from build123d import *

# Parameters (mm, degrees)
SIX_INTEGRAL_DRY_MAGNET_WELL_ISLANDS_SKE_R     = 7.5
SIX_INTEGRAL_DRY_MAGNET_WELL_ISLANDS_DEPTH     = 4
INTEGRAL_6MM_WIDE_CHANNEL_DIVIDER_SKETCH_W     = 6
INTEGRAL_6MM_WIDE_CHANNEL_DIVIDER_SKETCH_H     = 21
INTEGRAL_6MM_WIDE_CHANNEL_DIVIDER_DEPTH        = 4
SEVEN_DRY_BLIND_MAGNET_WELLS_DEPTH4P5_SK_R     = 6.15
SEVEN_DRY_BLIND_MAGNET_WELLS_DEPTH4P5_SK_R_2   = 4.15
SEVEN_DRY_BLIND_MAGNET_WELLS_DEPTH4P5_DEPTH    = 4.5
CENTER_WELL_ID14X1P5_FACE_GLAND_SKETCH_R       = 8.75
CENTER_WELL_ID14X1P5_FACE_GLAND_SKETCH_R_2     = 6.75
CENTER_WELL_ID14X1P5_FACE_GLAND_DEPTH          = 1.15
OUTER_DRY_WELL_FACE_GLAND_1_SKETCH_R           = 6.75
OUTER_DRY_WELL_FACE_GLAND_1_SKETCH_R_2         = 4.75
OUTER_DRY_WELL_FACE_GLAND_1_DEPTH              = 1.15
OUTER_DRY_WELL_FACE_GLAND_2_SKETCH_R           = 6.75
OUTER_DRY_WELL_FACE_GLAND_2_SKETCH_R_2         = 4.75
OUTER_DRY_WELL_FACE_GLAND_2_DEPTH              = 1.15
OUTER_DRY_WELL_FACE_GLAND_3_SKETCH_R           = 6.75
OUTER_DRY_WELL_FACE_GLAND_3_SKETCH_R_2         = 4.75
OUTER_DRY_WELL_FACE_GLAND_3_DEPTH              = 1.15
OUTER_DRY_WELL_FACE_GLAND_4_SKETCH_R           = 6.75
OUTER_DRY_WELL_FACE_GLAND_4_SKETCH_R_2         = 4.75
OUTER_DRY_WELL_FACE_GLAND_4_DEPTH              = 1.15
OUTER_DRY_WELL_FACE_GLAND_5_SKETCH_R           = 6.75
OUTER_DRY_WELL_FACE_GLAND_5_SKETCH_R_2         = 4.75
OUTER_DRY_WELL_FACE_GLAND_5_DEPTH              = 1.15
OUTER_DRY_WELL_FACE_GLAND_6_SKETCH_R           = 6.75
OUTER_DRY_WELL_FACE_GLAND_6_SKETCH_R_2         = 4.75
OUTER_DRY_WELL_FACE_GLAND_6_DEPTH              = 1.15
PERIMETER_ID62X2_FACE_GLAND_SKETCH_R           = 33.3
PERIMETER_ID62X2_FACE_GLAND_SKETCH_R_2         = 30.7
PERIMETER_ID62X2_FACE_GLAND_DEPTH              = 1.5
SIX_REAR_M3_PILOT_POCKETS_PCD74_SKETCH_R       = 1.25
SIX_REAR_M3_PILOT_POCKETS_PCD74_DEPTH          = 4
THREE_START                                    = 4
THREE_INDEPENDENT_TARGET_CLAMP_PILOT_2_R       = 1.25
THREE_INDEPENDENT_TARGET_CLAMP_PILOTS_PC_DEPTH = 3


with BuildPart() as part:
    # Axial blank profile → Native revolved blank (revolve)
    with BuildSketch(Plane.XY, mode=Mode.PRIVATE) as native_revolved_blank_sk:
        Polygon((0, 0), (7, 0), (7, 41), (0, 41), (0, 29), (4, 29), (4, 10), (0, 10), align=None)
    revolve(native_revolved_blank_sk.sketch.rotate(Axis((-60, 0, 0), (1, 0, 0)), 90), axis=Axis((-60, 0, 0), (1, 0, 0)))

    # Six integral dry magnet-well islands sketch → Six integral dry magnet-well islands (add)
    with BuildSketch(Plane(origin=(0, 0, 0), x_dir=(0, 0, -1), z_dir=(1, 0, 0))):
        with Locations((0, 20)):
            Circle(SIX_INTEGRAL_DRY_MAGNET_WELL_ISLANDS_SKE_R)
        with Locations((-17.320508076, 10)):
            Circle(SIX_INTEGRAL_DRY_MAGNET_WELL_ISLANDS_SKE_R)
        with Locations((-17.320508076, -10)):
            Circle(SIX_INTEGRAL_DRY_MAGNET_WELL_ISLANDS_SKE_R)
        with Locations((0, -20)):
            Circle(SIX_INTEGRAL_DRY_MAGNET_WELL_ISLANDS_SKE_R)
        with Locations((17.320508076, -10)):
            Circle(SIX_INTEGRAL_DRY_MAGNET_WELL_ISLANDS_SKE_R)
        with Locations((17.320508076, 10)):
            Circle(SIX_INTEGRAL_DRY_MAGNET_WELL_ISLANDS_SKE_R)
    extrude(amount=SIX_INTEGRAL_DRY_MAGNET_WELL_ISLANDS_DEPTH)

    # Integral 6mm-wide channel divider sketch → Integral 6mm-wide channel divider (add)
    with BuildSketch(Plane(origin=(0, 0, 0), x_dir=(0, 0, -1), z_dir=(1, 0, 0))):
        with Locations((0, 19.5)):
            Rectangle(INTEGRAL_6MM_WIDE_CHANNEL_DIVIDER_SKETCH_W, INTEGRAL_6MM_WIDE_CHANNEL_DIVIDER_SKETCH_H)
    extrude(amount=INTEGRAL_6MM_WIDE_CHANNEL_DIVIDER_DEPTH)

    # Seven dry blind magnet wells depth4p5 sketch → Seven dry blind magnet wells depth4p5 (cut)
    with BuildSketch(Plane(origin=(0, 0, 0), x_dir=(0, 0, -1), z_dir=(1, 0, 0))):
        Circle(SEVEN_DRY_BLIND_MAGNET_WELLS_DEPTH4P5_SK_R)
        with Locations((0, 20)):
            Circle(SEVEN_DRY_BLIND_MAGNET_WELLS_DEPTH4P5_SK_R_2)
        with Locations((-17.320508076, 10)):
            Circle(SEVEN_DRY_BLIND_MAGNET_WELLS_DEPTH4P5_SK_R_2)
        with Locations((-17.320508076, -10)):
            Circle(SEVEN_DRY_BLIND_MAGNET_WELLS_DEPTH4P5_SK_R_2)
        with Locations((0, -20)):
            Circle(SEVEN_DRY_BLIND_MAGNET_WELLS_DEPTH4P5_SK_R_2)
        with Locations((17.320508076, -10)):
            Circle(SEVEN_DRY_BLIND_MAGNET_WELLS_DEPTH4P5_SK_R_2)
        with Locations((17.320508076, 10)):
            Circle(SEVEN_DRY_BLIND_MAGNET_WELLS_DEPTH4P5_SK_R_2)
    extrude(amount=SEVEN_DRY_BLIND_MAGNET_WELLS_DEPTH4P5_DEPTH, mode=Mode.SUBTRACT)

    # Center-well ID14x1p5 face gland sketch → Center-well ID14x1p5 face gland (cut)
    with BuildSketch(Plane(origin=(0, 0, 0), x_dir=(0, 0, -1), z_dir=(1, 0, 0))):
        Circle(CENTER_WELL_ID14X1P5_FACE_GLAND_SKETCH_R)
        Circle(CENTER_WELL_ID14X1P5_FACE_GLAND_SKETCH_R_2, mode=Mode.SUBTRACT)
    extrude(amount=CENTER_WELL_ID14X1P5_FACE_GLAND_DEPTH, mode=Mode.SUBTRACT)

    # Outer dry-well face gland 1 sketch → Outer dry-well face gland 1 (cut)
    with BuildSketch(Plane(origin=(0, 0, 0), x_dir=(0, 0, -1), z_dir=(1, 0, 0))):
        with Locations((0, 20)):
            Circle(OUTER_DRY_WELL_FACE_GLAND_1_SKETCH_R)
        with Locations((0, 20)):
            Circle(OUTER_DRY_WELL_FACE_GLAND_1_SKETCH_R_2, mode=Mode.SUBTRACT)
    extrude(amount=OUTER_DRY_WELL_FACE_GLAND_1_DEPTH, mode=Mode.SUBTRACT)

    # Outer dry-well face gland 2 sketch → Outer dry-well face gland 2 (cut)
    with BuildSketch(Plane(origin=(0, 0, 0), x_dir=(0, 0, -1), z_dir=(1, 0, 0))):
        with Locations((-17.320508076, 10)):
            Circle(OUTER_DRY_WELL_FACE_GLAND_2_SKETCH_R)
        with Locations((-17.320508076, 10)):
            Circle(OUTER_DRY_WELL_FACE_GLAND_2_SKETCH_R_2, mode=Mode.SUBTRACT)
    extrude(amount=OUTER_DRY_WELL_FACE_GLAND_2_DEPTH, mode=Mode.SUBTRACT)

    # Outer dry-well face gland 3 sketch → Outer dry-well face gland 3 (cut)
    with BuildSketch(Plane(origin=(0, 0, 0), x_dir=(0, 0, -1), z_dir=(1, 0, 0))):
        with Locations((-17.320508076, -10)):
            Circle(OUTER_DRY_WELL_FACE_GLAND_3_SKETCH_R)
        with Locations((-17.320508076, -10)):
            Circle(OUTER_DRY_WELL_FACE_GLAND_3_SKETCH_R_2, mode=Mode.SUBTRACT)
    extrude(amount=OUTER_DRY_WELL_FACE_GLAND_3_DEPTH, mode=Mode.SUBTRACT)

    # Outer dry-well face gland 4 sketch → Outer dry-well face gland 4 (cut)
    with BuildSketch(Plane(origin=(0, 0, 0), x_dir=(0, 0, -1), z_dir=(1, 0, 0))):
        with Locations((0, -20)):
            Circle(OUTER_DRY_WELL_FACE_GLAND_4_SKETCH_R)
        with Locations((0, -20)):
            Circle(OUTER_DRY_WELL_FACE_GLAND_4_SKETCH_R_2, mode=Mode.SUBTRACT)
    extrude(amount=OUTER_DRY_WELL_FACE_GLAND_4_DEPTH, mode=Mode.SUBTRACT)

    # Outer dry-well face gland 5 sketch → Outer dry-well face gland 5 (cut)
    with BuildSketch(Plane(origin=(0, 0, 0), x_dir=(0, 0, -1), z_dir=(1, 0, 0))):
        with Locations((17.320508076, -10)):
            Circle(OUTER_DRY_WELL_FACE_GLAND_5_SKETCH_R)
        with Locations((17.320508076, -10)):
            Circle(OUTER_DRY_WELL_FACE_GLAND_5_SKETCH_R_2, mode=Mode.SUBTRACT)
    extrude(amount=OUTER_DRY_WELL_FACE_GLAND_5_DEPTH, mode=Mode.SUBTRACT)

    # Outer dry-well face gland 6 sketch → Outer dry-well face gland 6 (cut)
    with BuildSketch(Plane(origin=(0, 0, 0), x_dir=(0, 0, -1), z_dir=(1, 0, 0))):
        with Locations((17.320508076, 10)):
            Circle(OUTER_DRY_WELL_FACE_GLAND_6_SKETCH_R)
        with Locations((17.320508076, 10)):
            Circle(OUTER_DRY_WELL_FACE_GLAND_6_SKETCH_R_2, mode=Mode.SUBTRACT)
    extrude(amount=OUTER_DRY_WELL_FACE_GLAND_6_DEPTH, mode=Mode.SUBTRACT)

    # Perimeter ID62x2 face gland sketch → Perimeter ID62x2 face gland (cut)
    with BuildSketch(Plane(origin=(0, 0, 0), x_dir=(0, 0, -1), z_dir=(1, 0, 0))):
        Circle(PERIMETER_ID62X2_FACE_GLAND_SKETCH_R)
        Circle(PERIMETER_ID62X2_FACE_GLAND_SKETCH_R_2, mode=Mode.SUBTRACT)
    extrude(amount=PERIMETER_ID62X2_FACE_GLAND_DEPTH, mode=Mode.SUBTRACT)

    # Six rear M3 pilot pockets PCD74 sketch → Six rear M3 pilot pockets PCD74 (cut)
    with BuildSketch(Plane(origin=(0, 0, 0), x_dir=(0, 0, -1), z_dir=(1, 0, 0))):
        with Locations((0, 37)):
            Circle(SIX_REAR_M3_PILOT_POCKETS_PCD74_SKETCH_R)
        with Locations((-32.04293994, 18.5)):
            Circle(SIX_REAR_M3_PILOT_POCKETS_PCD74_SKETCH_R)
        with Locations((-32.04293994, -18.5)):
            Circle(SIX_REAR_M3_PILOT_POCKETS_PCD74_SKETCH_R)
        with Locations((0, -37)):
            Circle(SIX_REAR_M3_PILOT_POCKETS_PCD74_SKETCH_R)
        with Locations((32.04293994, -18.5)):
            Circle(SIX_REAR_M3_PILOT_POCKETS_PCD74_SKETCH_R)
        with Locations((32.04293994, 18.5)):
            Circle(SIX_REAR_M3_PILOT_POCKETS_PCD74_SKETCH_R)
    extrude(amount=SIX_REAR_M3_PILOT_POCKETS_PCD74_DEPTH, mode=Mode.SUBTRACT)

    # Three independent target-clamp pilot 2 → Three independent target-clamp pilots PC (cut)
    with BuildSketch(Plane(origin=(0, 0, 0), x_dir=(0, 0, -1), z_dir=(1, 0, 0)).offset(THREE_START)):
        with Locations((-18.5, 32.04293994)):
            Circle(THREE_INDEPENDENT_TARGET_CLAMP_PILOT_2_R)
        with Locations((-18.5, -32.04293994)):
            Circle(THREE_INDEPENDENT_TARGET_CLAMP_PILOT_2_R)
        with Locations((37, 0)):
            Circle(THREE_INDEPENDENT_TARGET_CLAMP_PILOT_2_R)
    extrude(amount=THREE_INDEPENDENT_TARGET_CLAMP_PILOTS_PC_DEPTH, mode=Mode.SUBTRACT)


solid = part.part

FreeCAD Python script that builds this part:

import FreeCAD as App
import Part
import Sketcher
from FreeCAD import Vector
Q = App.Units.Quantity


def add_polygon(sketch, points):
    """Adds a closed chain of lines whose ends are joined by coincident constraints."""
    first, n = sketch.GeometryCount, len(points)
    for a, b in zip(points, points[1:] + points[:1]):
        sketch.addGeometry(Part.LineSegment(App.Vector(*a, 0), App.Vector(*b, 0)), False)
    for i in range(n):
        sketch.addConstraint(Sketcher.Constraint("Coincident", first + i, 2, first + (i + 1) % n, 1))

doc = App.newDocument("Part")
body = doc.addObject("PartDesign::Body", "Body")

# Sketch on XY plane
sketch1 = doc.addObject("Sketcher::SketchObject", "Sketch")
body.addObject(sketch1)
sketch1.AttachmentSupport = (doc.XY_Plane, [""])
sketch1.MapMode = "FlatFace"
add_polygon(sketch1, [(0, 0), (7, 0), (7, 41), (0, 41), (0, 29), (4, 29), (4, 10), (0, 10)])  # lines 0-7
sketch1.addConstraint([
    Sketcher.Constraint("Horizontal", 0),
    Sketcher.Constraint("Vertical", 1),
    Sketcher.Constraint("Horizontal", 2),
    Sketcher.Constraint("Vertical", 3),
    Sketcher.Constraint("Horizontal", 4),
    Sketcher.Constraint("Vertical", 5),
    Sketcher.Constraint("Horizontal", 6),
    Sketcher.Constraint("Vertical", 7),
    Sketcher.Constraint("Coincident", 7, 2, -1, 1),
    Sketcher.Constraint("PointOnObject", 2, 2, -2),
    Sketcher.Constraint("DistanceX", 0, 1, 0, 2, Q("7 mm")),
    Sketcher.Constraint("DistanceX", 4, 1, 4, 2, Q("4 mm")),
    Sketcher.Constraint("DistanceY", 1, 1, 1, 2, Q("41 mm")),
    Sketcher.Constraint("DistanceY", 3, 2, 3, 1, Q("12 mm")),
    Sketcher.Constraint("DistanceY", 5, 2, 5, 1, Q("19 mm")),
])
revolution = doc.addObject("PartDesign::Revolution", "Revolution")
body.addObject(revolution)
revolution.Profile = sketch1
revolution.ReferenceAxis = (sketch1, ["H_Axis"])
revolution.Angle = 360

# Sketch on YZ plane
sketch2 = doc.addObject("Sketcher::SketchObject", "Sketch001")
body.addObject(sketch2)
sketch2.AttachmentSupport = (doc.YZ_Plane, [""])
sketch2.MapMode = "FlatFace"
sketch2.addGeometry([
    Part.Circle(Vector(20, 0, 0), Vector(0, 0, 1), 8),  # 0
    Part.Circle(Vector(10, 17, 0), Vector(0, 0, 1), 8),  # 1
    Part.Circle(Vector(-10, 17, 0), Vector(0, 0, 1), 8),  # 2
    Part.Circle(Vector(-20, 0, 0), Vector(0, 0, 1), 8),  # 3
    Part.Circle(Vector(-10, -17, 0), Vector(0, 0, 1), 8),  # 4
    Part.Circle(Vector(10, -17, 0), Vector(0, 0, 1), 8),  # 5
], False)
sketch2.addConstraint([
    Sketcher.Constraint("Equal", 0, 1),
    Sketcher.Constraint("Equal", 1, 2),
    Sketcher.Constraint("Equal", 2, 3),
    Sketcher.Constraint("Equal", 3, 4),
    Sketcher.Constraint("Equal", 4, 5),
    Sketcher.Constraint("Symmetric", 0, 3, 3, 3, -1, 1),
    Sketcher.Constraint("Symmetric", 1, 3, 4, 3, -1, 1),
    Sketcher.Constraint("Symmetric", 2, 3, 5, 3, -1, 1),
    Sketcher.Constraint("Symmetric", 1, 3, 2, 3, -2),
    Sketcher.Constraint("PointOnObject", 0, 3, -1),
    Sketcher.Constraint("Diameter", 0, Q("15 mm")),
    Sketcher.Constraint("DistanceX", -1, 1, 0, 3, Q("20 mm")),
    Sketcher.Constraint("DistanceX", -1, 1, 1, 3, Q("10 mm")),
    Sketcher.Constraint("DistanceY", -1, 1, 1, 3, Q("17.320508 mm")),
])
pad1 = doc.addObject("PartDesign::Pad", "Pad")
body.addObject(pad1)
pad1.Profile = sketch2
pad1.Length = 4

# Sketch on YZ plane
sketch3 = doc.addObject("Sketcher::SketchObject", "Sketch002")
body.addObject(sketch3)
sketch3.AttachmentSupport = (doc.YZ_Plane, [""])
sketch3.MapMode = "FlatFace"
add_polygon(sketch3, [(30, 3), (9, 3), (9, -3), (30, -3)])  # lines 0-3
sketch3.addConstraint([
    Sketcher.Constraint("Horizontal", 0),
    Sketcher.Constraint("Vertical", 1),
    Sketcher.Constraint("Horizontal", 2),
    Sketcher.Constraint("Vertical", 3),
    Sketcher.Constraint("DistanceX", 0, 2, 0, 1, Q("21 mm")),
    Sketcher.Constraint("DistanceY", 1, 2, 1, 1, Q("6 mm")),
    Sketcher.Constraint("DistanceX", -1, 1, 0, 2, Q("9 mm")),
    Sketcher.Constraint("DistanceY", -1, 1, 0, 2, Q("3 mm")),
])
pad2 = doc.addObject("PartDesign::Pad", "Pad001")
body.addObject(pad2)
pad2.Profile = sketch3
pad2.Length = 4

# Sketch on YZ plane
sketch4 = doc.addObject("Sketcher::SketchObject", "Sketch003")
body.addObject(sketch4)
sketch4.AttachmentSupport = (doc.YZ_Plane, [""])
sketch4.MapMode = "FlatFace"
sketch4.addGeometry([
    Part.Circle(Vector(0, 0, 0), Vector(0, 0, 1), 6.2),  # 0
    Part.Circle(Vector(20, 0, 0), Vector(0, 0, 1), 4.2),  # 1
    Part.Circle(Vector(10, 17.3, 0), Vector(0, 0, 1), 4.2),  # 2
    Part.Circle(Vector(-10, 17.3, 0), Vector(0, 0, 1), 4.2),  # 3
    Part.Circle(Vector(-20, 0, 0), Vector(0, 0, 1), 4.2),  # 4
    Part.Circle(Vector(-10, -17.3, 0), Vector(0, 0, 1), 4.2),  # 5
    Part.Circle(Vector(10, -17.3, 0), Vector(0, 0, 1), 4.2),  # 6
], False)
sketch4.addConstraint([
    Sketcher.Constraint("Coincident", 0, 3, -1, 1),
    Sketcher.Constraint("Equal", 1, 2),
    Sketcher.Constraint("Equal", 2, 3),
    Sketcher.Constraint("Equal", 3, 4),
    Sketcher.Constraint("Equal", 4, 5),
    Sketcher.Constraint("Equal", 5, 6),
    Sketcher.Constraint("Symmetric", 1, 3, 4, 3, -1, 1),
    Sketcher.Constraint("Symmetric", 2, 3, 5, 3, -1, 1),
    Sketcher.Constraint("Symmetric", 3, 3, 6, 3, -1, 1),
    Sketcher.Constraint("Symmetric", 2, 3, 3, 3, -2),
    Sketcher.Constraint("PointOnObject", 1, 3, -1),
    Sketcher.Constraint("Diameter", 0, Q("12.3 mm")),
    Sketcher.Constraint("Diameter", 1, Q("8.3 mm")),
    Sketcher.Constraint("DistanceX", -1, 1, 1, 3, Q("20 mm")),
    Sketcher.Constraint("DistanceX", -1, 1, 2, 3, Q("10 mm")),
    Sketcher.Constraint("DistanceY", -1, 1, 2, 3, Q("17.320508 mm")),
])
pocket1 = doc.addObject("PartDesign::Pocket", "Pocket")
body.addObject(pocket1)
pocket1.Profile = sketch4
pocket1.Length = 4.5
pocket1.Reversed = True

# Sketch on YZ plane
sketch5 = doc.addObject("Sketcher::SketchObject", "Sketch004")
body.addObject(sketch5)
sketch5.AttachmentSupport = (doc.YZ_Plane, [""])
sketch5.MapMode = "FlatFace"
sketch5.addGeometry([
    Part.Circle(Vector(0, 0, 0), Vector(0, 0, 1), 9),
    Part.Circle(Vector(0, 0, 0), Vector(0, 0, 1), 7),
], False)
sketch5.addConstraint([
    Sketcher.Constraint("Coincident", 0, 3, -1, 1),
    Sketcher.Constraint("Coincident", 1, 3, -1, 1),
    Sketcher.Constraint("Diameter", 0, Q("17.5 mm")),
    Sketcher.Constraint("Diameter", 1, Q("13.5 mm")),
])
pocket2 = doc.addObject("PartDesign::Pocket", "Pocket001")
body.addObject(pocket2)
pocket2.Profile = sketch5
pocket2.Length = 1.15
pocket2.Reversed = True

# Sketch on YZ plane
sketch6 = doc.addObject("Sketcher::SketchObject", "Sketch005")
body.addObject(sketch6)
sketch6.AttachmentSupport = (doc.YZ_Plane, [""])
sketch6.MapMode = "FlatFace"
sketch6.addGeometry([
    Part.Circle(Vector(20, 0, 0), Vector(0, 0, 1), 6.8),
    Part.Circle(Vector(20, 0, 0), Vector(0, 0, 1), 4.8),
], False)
sketch6.addConstraint([
    Sketcher.Constraint("Coincident", 1, 3, 0, 3),
    Sketcher.Constraint("PointOnObject", 0, 3, -1),
    Sketcher.Constraint("Diameter", 0, Q("13.5 mm")),
    Sketcher.Constraint("Diameter", 1, Q("9.5 mm")),
    Sketcher.Constraint("DistanceX", -1, 1, 0, 3, Q("20 mm")),
])
pocket3 = doc.addObject("PartDesign::Pocket", "Pocket002")
body.addObject(pocket3)
pocket3.Profile = sketch6
pocket3.Length = 1.15
pocket3.Reversed = True

# Sketch on YZ plane
sketch7 = doc.addObject("Sketcher::SketchObject", "Sketch006")
body.addObject(sketch7)
sketch7.AttachmentSupport = (doc.YZ_Plane, [""])
sketch7.MapMode = "FlatFace"
sketch7.addGeometry([
    Part.Circle(Vector(10, 17.3, 0), Vector(0, 0, 1), 6.8),
    Part.Circle(Vector(10, 17.3, 0), Vector(0, 0, 1), 4.8),
], False)
sketch7.addConstraint([
    Sketcher.Constraint("Coincident", 1, 3, 0, 3),
    Sketcher.Constraint("Diameter", 0, Q("13.5 mm")),
    Sketcher.Constraint("Diameter", 1, Q("9.5 mm")),
    Sketcher.Constraint("DistanceX", -1, 1, 0, 3, Q("10 mm")),
    Sketcher.Constraint("DistanceY", -1, 1, 0, 3, Q("17.320508 mm")),
])
pocket4 = doc.addObject("PartDesign::Pocket", "Pocket003")
body.addObject(pocket4)
pocket4.Profile = sketch7
pocket4.Length = 1.15
pocket4.Reversed = True

# Sketch on YZ plane
sketch8 = doc.addObject("Sketcher::SketchObject", "Sketch007")
body.addObject(sketch8)
sketch8.AttachmentSupport = (doc.YZ_Plane, [""])
sketch8.MapMode = "FlatFace"
sketch8.addGeometry([
    Part.Circle(Vector(-10, 17.3, 0), Vector(0, 0, 1), 6.8),
    Part.Circle(Vector(-10, 17.3, 0), Vector(0, 0, 1), 4.8),
], False)
sketch8.addConstraint([
    Sketcher.Constraint("Coincident", 1, 3, 0, 3),
    Sketcher.Constraint("Diameter", 0, Q("13.5 mm")),
    Sketcher.Constraint("Diameter", 1, Q("9.5 mm")),
    Sketcher.Constraint("DistanceX", 0, 3, -1, 1, Q("10 mm")),
    Sketcher.Constraint("DistanceY", -1, 1, 0, 3, Q("17.320508 mm")),
])
pocket5 = doc.addObject("PartDesign::Pocket", "Pocket004")
body.addObject(pocket5)
pocket5.Profile = sketch8
pocket5.Length = 1.15
pocket5.Reversed = True

# Sketch on YZ plane
sketch9 = doc.addObject("Sketcher::SketchObject", "Sketch008")
body.addObject(sketch9)
sketch9.AttachmentSupport = (doc.YZ_Plane, [""])
sketch9.MapMode = "FlatFace"
sketch9.addGeometry([
    Part.Circle(Vector(-20, 0, 0), Vector(0, 0, 1), 6.8),
    Part.Circle(Vector(-20, 0, 0), Vector(0, 0, 1), 4.8),
], False)
sketch9.addConstraint([
    Sketcher.Constraint("Coincident", 1, 3, 0, 3),
    Sketcher.Constraint("PointOnObject", 0, 3, -1),
    Sketcher.Constraint("Diameter", 0, Q("13.5 mm")),
    Sketcher.Constraint("Diameter", 1, Q("9.5 mm")),
    Sketcher.Constraint("DistanceX", 0, 3, -1, 1, Q("20 mm")),
])
pocket6 = doc.addObject("PartDesign::Pocket", "Pocket005")
body.addObject(pocket6)
pocket6.Profile = sketch9
pocket6.Length = 1.15
pocket6.Reversed = True

# Sketch on YZ plane
sketch10 = doc.addObject("Sketcher::SketchObject", "Sketch009")
body.addObject(sketch10)
sketch10.AttachmentSupport = (doc.YZ_Plane, [""])
sketch10.MapMode = "FlatFace"
sketch10.addGeometry([
    Part.Circle(Vector(-10, -17.3, 0), Vector(0, 0, 1), 6.8),
    Part.Circle(Vector(-10, -17.3, 0), Vector(0, 0, 1), 4.8),
], False)
sketch10.addConstraint([
    Sketcher.Constraint("Coincident", 1, 3, 0, 3),
    Sketcher.Constraint("Diameter", 0, Q("13.5 mm")),
    Sketcher.Constraint("Diameter", 1, Q("9.5 mm")),
    Sketcher.Constraint("DistanceX", 0, 3, -1, 1, Q("10 mm")),
    Sketcher.Constraint("DistanceY", 0, 3, -1, 1, Q("17.320508 mm")),
])
pocket7 = doc.addObject("PartDesign::Pocket", "Pocket006")
body.addObject(pocket7)
pocket7.Profile = sketch10
pocket7.Length = 1.15
pocket7.Reversed = True

# Sketch on YZ plane
sketch11 = doc.addObject("Sketcher::SketchObject", "Sketch010")
body.addObject(sketch11)
sketch11.AttachmentSupport = (doc.YZ_Plane, [""])
sketch11.MapMode = "FlatFace"
sketch11.addGeometry([
    Part.Circle(Vector(10, -17.3, 0), Vector(0, 0, 1), 6.8),
    Part.Circle(Vector(10, -17.3, 0), Vector(0, 0, 1), 4.8),
], False)
sketch11.addConstraint([
    Sketcher.Constraint("Coincident", 1, 3, 0, 3),
    Sketcher.Constraint("Diameter", 0, Q("13.5 mm")),
    Sketcher.Constraint("Diameter", 1, Q("9.5 mm")),
    Sketcher.Constraint("DistanceX", -1, 1, 0, 3, Q("10 mm")),
    Sketcher.Constraint("DistanceY", 0, 3, -1, 1, Q("17.320508 mm")),
])
pocket8 = doc.addObject("PartDesign::Pocket", "Pocket007")
body.addObject(pocket8)
pocket8.Profile = sketch11
pocket8.Length = 1.15
pocket8.Reversed = True

# Sketch on YZ plane
sketch12 = doc.addObject("Sketcher::SketchObject", "Sketch011")
body.addObject(sketch12)
sketch12.AttachmentSupport = (doc.YZ_Plane, [""])
sketch12.MapMode = "FlatFace"
sketch12.addGeometry([
    Part.Circle(Vector(0, 0, 0), Vector(0, 0, 1), 33),
    Part.Circle(Vector(0, 0, 0), Vector(0, 0, 1), 31),
], False)
sketch12.addConstraint([
    Sketcher.Constraint("Coincident", 0, 3, -1, 1),
    Sketcher.Constraint("Coincident", 1, 3, -1, 1),
    Sketcher.Constraint("Diameter", 0, Q("66.6 mm")),
    Sketcher.Constraint("Diameter", 1, Q("61.4 mm")),
])
pocket9 = doc.addObject("PartDesign::Pocket", "Pocket008")
body.addObject(pocket9)
pocket9.Profile = sketch12
pocket9.Length = 1.5
pocket9.Reversed = True

# Sketch on YZ plane
sketch13 = doc.addObject("Sketcher::SketchObject", "Sketch012")
body.addObject(sketch13)
sketch13.AttachmentSupport = (doc.YZ_Plane, [""])
sketch13.MapMode = "FlatFace"
sketch13.addGeometry([
    Part.Circle(Vector(37, 0, 0), Vector(0, 0, 1), 1.2),  # 0
    Part.Circle(Vector(18.5, 32, 0), Vector(0, 0, 1), 1.2),  # 1
    Part.Circle(Vector(-18.5, 32, 0), Vector(0, 0, 1), 1.2),  # 2
    Part.Circle(Vector(-37, 0, 0), Vector(0, 0, 1), 1.2),  # 3
    Part.Circle(Vector(-18.5, -32, 0), Vector(0, 0, 1), 1.2),  # 4
    Part.Circle(Vector(18.5, -32, 0), Vector(0, 0, 1), 1.2),  # 5
], False)
sketch13.addConstraint([
    Sketcher.Constraint("Equal", 0, 1),
    Sketcher.Constraint("Equal", 1, 2),
    Sketcher.Constraint("Equal", 2, 3),
    Sketcher.Constraint("Equal", 3, 4),
    Sketcher.Constraint("Equal", 4, 5),
    Sketcher.Constraint("Symmetric", 0, 3, 3, 3, -1, 1),
    Sketcher.Constraint("Symmetric", 1, 3, 4, 3, -1, 1),
    Sketcher.Constraint("Symmetric", 2, 3, 5, 3, -1, 1),
    Sketcher.Constraint("Symmetric", 1, 3, 2, 3, -2),
    Sketcher.Constraint("PointOnObject", 0, 3, -1),
    Sketcher.Constraint("Diameter", 0, Q("2.5 mm")),
    Sketcher.Constraint("DistanceX", -1, 1, 0, 3, Q("37 mm")),
    Sketcher.Constraint("DistanceX", 2, 3, 1, 3, Q("37 mm")),
    Sketcher.Constraint("DistanceY", -1, 1, 1, 3, Q("32.04294 mm")),
])
pocket10 = doc.addObject("PartDesign::Pocket", "Pocket009")
body.addObject(pocket10)
pocket10.Profile = sketch13
pocket10.Length = 4
pocket10.Reversed = True

# Sketch on YZ plane
sketch14 = doc.addObject("Sketcher::SketchObject", "Sketch013")
body.addObject(sketch14)
sketch14.AttachmentSupport = (doc.YZ_Plane, [""])
sketch14.MapMode = "FlatFace"
sketch14.AttachmentOffset = App.Placement(Vector(0, 0, 4), App.Rotation())
sketch14.addGeometry([
    Part.Circle(Vector(32, 18.5, 0), Vector(0, 0, 1), 1.2),
    Part.Circle(Vector(-32, 18.5, 0), Vector(0, 0, 1), 1.2),
    Part.Circle(Vector(0, -37, 0), Vector(0, 0, 1), 1.2),
], False)
sketch14.addConstraint([
    Sketcher.Constraint("Equal", 0, 1),
    Sketcher.Constraint("Equal", 1, 2),
    Sketcher.Constraint("Symmetric", 0, 3, 1, 3, -2),
    Sketcher.Constraint("PointOnObject", 2, 3, -2),
    Sketcher.Constraint("Diameter", 0, Q("2.5 mm")),
    Sketcher.Constraint("DistanceY", 2, 3, -1, 1, Q("37 mm")),
    Sketcher.Constraint("DistanceY", -1, 1, 0, 3, Q("18.5 mm")),
    Sketcher.Constraint("DistanceX", -1, 1, 0, 3, Q("32.04294 mm")),
])
pocket11 = doc.addObject("PartDesign::Pocket", "Pocket010")
body.addObject(pocket11)
pocket11.Profile = sketch14
pocket11.Length = 3
pocket11.Reversed = True

doc.recompute()
